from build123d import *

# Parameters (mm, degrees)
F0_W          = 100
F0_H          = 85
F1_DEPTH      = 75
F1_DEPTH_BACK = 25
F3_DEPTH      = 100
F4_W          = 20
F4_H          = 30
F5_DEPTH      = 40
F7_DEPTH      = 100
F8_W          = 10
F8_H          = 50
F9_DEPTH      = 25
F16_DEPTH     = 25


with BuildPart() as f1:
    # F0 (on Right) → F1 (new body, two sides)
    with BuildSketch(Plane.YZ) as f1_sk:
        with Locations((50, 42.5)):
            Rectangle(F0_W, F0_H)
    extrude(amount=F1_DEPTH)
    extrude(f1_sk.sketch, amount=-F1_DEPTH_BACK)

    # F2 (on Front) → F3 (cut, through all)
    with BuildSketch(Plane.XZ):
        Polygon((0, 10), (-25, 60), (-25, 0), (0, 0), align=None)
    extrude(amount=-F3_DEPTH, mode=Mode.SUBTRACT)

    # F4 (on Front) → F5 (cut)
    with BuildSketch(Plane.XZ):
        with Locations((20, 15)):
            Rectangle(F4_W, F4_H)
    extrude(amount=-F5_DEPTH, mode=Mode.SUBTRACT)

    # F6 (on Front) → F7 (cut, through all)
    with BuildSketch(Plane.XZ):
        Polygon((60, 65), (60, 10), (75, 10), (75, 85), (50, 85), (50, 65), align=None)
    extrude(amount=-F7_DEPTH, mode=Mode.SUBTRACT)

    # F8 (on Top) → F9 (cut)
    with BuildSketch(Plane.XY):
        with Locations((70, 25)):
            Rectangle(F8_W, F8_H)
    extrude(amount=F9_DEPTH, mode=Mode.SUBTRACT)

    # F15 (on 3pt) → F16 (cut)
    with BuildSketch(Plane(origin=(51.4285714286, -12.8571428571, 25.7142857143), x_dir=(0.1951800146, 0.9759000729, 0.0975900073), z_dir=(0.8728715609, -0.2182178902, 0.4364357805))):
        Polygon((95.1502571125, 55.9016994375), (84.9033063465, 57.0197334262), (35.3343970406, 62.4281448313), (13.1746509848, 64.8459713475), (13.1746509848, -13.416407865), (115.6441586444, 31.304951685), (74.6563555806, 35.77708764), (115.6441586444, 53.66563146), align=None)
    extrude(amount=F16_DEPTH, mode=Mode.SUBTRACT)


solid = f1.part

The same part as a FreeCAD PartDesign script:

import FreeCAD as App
import Part
import Sketcher

V = App.Vector
Q = App.Units.Quantity


def add_polygon(sketch, points):
    """Adds a closed chain of lines whose ends are joined by coincident constraints."""
    first, n = sketch.GeometryCount, len(points)
    for a, b in zip(points, points[1:] + points[:1]):
        sketch.addGeometry(Part.LineSegment(App.Vector(*a, 0), App.Vector(*b, 0)), False)
    for i in range(n):
        sketch.addConstraint(Sketcher.Constraint("Coincident", first + i, 2, first + (i + 1) % n, 1))

doc = App.newDocument("Part")
body = doc.addObject("PartDesign::Body", "Body")

# Sketch on YZ plane
sketch1 = doc.addObject("Sketcher::SketchObject", "Sketch")
body.addObject(sketch1)
sketch1.AttachmentSupport = (doc.YZ_Plane, [""])
sketch1.MapMode = "FlatFace"
add_polygon(sketch1, [(0, 85), (0, 0), (100, 0), (100, 85)])  # lines 0-3
sketch1.addConstraint(Sketcher.Constraint("Vertical", 0))
sketch1.addConstraint(Sketcher.Constraint("Horizontal", 1))
sketch1.addConstraint(Sketcher.Constraint("Vertical", 2))
sketch1.addConstraint(Sketcher.Constraint("Horizontal", 3))
sketch1.addConstraint(Sketcher.Constraint("Coincident", 0, 2, -1, 1))
sketch1.addConstraint(Sketcher.Constraint("DistanceX", 1, 1, 1, 2, Q("100 mm")))
sketch1.addConstraint(Sketcher.Constraint("DistanceY", 0, 2, 0, 1, Q("85 mm")))
pad1 = doc.addObject("PartDesign::Pad", "Pad")
body.addObject(pad1)
pad1.Profile = sketch1
pad1.Type = "TwoLengths"
pad1.Length = 75
pad1.Length2 = 25

# Sketch on XZ plane
sketch2 = doc.addObject("Sketcher::SketchObject", "Sketch001")
body.addObject(sketch2)
sketch2.AttachmentSupport = (doc.XZ_Plane, [""])
sketch2.MapMode = "FlatFace"
add_polygon(sketch2, [(0, 10), (-25, 60), (-25, 0), (0, 0)])  # lines 0-3
sketch2.addConstraint(Sketcher.Constraint("Vertical", 1))
sketch2.addConstraint(Sketcher.Constraint("Horizontal", 2))
sketch2.addConstraint(Sketcher.Constraint("Vertical", 3))
sketch2.addConstraint(Sketcher.Constraint("Coincident", 2, 2, -1, 1))
sketch2.addConstraint(Sketcher.Constraint("DistanceX", 2, 1, 2, 2, Q("25 mm")))
sketch2.addConstraint(Sketcher.Constraint("DistanceY", 1, 2, 1, 1, Q("60 mm")))
sketch2.addConstraint(Sketcher.Constraint("DistanceY", 3, 1, 3, 2, Q("10 mm")))
pocket1 = doc.addObject("PartDesign::Pocket", "Pocket")
body.addObject(pocket1)
pocket1.Profile = sketch2
pocket1.Type = "ThroughAll"

# Sketch on XZ plane
sketch3 = doc.addObject("Sketcher::SketchObject", "Sketch002")
body.addObject(sketch3)
sketch3.AttachmentSupport = (doc.XZ_Plane, [""])
sketch3.MapMode = "FlatFace"
add_polygon(sketch3, [(10, 30), (10, 0), (30, 0), (30, 30)])  # lines 0-3
sketch3.addConstraint(Sketcher.Constraint("Vertical", 0))
sketch3.addConstraint(Sketcher.Constraint("Horizontal", 1))
sketch3.addConstraint(Sketcher.Constraint("Vertical", 2))
sketch3.addConstraint(Sketcher.Constraint("Horizontal", 3))
sketch3.addConstraint(Sketcher.Constraint("PointOnObject", 0, 2, -1))
sketch3.addConstraint(Sketcher.Constraint("DistanceX", 1, 1, 1, 2, Q("20 mm")))
sketch3.addConstraint(Sketcher.Constraint("DistanceY", 0, 2, 0, 1, Q("30 mm")))
sketch3.addConstraint(Sketcher.Constraint("DistanceX", -1, 1, 0, 2, Q("10 mm")))
pocket2 = doc.addObject("PartDesign::Pocket", "Pocket001")
body.addObject(pocket2)
pocket2.Profile = sketch3
pocket2.Length = 40

# Sketch on XZ plane
sketch4 = doc.addObject("Sketcher::SketchObject", "Sketch003")
body.addObject(sketch4)
sketch4.AttachmentSupport = (doc.XZ_Plane, [""])
sketch4.MapMode = "FlatFace"
add_polygon(sketch4, [(60, 65), (60, 10), (75, 10), (75, 85), (50, 85), (50, 65)])  # lines 0-5
sketch4.addConstraint(Sketcher.Constraint("Vertical", 0))
sketch4.addConstraint(Sketcher.Constraint("Horizontal", 1))
sketch4.addConstraint(Sketcher.Constraint("Vertical", 2))
sketch4.addConstraint(Sketcher.Constraint("Horizontal", 3))
sketch4.addConstraint(Sketcher.Constraint("Vertical", 4))
sketch4.addConstraint(Sketcher.Constraint("Horizontal", 5))
sketch4.addConstraint(Sketcher.Constraint("DistanceX", 1, 1, 1, 2, Q("15 mm")))
sketch4.addConstraint(Sketcher.Constraint("DistanceX", 3, 2, 3, 1, Q("25 mm")))
sketch4.addConstraint(Sketcher.Constraint("DistanceY", 0, 2, 0, 1, Q("55 mm")))
sketch4.addConstraint(Sketcher.Constraint("DistanceY", 2, 1, 2, 2, Q("75 mm")))
sketch4.addConstraint(Sketcher.Constraint("DistanceX", -1, 1, 0, 2, Q("60 mm")))
sketch4.addConstraint(Sketcher.Constraint("DistanceY", -1, 1, 0, 2, Q("10 mm")))
pocket3 = doc.addObject("PartDesign::Pocket", "Pocket002")
body.addObject(pocket3)
pocket3.Profile = sketch4
pocket3.Type = "ThroughAll"

# Sketch on XY plane
sketch5 = doc.addObject("Sketcher::SketchObject", "Sketch004")
body.addObject(sketch5)
sketch5.AttachmentSupport = (doc.XY_Plane, [""])
sketch5.MapMode = "FlatFace"
add_polygon(sketch5, [(65, 50), (65, 0), (75, 0), (75, 50)])  # lines 0-3
sketch5.addConstraint(Sketcher.Constraint("Vertical", 0))
sketch5.addConstraint(Sketcher.Constraint("Horizontal", 1))
sketch5.addConstraint(Sketcher.Constraint("Vertical", 2))
sketch5.addConstraint(Sketcher.Constraint("Horizontal", 3))
sketch5.addConstraint(Sketcher.Constraint("PointOnObject", 0, 2, -1))
sketch5.addConstraint(Sketcher.Constraint("DistanceX", 1, 1, 1, 2, Q("10 mm")))
sketch5.addConstraint(Sketcher.Constraint("DistanceY", 0, 2, 0, 1, Q("50 mm")))
sketch5.addConstraint(Sketcher.Constraint("DistanceX", -1, 1, 0, 2, Q("65 mm")))
pocket4 = doc.addObject("PartDesign::Pocket", "Pocket003")
body.addObject(pocket4)
pocket4.Profile = sketch5
pocket4.Length = 25
pocket4.Reversed = True

# Sketch on an angled plane
sketch6 = doc.addObject("Sketcher::SketchObject", "Sketch005")
body.addObject(sketch6)
sketch6.Placement = App.Placement(V(51.428571, -12.857143, 25.714286), App.Rotation(V(0.195180015, 0.975900073, 0.097590007), V(-0.447213596, 0.000000001, 0.894427191), V(0.872871561, -0.21821789, 0.436435781), "ZXY"))
add_polygon(sketch6, [(95.150257, 55.901699), (84.903306, 57.019733), (35.334397, 62.428145), (13.174651, 64.845971), (13.174651, -13.416408), (115.644159, 31.304952), (74.656356, 35.777088), (115.644159, 53.665631)])  # lines 0-7
sketch6.addConstraint(Sketcher.Constraint("Vertical", 3))
sketch6.addConstraint(Sketcher.Constraint("Parallel", 0, 1))
sketch6.addConstraint(Sketcher.Constraint("Parallel", 1, 2))
sketch6.addConstraint(Sketcher.Constraint("Parallel", 2, 5))
sketch6.addConstraint(Sketcher.Constraint("Parallel", 4, 6))
sketch6.addConstraint(Sketcher.Constraint("Parallel", 5, 7))
sketch6.addConstraint(Sketcher.Constraint("Vertical", 4, 2, 6, 2))
sketch6.addConstraint(Sketcher.Constraint("Distance", 4, Q("111.803399 mm")))
sketch6.addConstraint(Sketcher.Constraint("DistanceY", 3, 2, 3, 1, Q("78.262379 mm")))
sketch6.addConstraint(Sketcher.Constraint("DistanceY", -1, 1, 7, 2, Q("55.901699 mm")))
sketch6.addConstraint(Sketcher.Constraint("DistanceY", 6, 2, 0, 2, Q("3.354102 mm")))
sketch6.addConstraint(Sketcher.Constraint("DistanceX", 7, 2, 6, 2, Q("20.493902 mm")))
sketch6.addConstraint(Sketcher.Constraint("DistanceX", 5, 2, 7, 2, Q("20.493902 mm")))
sketch6.addConstraint(Sketcher.Constraint("Distance", 1, Q("49.863089 mm")))
sketch6.addConstraint(Sketcher.Constraint("Distance", 2, Q("22.291259 mm")))
sketch6.addConstraint(Sketcher.Constraint("DistanceX", -1, 1, 2, 2, Q("13.174651 mm")))
pocket5 = doc.addObject("PartDesign::Pocket", "Pocket004")
body.addObject(pocket5)
pocket5.Profile = sketch6
pocket5.Length = 25
pocket5.Reversed = True

doc.recompute()
